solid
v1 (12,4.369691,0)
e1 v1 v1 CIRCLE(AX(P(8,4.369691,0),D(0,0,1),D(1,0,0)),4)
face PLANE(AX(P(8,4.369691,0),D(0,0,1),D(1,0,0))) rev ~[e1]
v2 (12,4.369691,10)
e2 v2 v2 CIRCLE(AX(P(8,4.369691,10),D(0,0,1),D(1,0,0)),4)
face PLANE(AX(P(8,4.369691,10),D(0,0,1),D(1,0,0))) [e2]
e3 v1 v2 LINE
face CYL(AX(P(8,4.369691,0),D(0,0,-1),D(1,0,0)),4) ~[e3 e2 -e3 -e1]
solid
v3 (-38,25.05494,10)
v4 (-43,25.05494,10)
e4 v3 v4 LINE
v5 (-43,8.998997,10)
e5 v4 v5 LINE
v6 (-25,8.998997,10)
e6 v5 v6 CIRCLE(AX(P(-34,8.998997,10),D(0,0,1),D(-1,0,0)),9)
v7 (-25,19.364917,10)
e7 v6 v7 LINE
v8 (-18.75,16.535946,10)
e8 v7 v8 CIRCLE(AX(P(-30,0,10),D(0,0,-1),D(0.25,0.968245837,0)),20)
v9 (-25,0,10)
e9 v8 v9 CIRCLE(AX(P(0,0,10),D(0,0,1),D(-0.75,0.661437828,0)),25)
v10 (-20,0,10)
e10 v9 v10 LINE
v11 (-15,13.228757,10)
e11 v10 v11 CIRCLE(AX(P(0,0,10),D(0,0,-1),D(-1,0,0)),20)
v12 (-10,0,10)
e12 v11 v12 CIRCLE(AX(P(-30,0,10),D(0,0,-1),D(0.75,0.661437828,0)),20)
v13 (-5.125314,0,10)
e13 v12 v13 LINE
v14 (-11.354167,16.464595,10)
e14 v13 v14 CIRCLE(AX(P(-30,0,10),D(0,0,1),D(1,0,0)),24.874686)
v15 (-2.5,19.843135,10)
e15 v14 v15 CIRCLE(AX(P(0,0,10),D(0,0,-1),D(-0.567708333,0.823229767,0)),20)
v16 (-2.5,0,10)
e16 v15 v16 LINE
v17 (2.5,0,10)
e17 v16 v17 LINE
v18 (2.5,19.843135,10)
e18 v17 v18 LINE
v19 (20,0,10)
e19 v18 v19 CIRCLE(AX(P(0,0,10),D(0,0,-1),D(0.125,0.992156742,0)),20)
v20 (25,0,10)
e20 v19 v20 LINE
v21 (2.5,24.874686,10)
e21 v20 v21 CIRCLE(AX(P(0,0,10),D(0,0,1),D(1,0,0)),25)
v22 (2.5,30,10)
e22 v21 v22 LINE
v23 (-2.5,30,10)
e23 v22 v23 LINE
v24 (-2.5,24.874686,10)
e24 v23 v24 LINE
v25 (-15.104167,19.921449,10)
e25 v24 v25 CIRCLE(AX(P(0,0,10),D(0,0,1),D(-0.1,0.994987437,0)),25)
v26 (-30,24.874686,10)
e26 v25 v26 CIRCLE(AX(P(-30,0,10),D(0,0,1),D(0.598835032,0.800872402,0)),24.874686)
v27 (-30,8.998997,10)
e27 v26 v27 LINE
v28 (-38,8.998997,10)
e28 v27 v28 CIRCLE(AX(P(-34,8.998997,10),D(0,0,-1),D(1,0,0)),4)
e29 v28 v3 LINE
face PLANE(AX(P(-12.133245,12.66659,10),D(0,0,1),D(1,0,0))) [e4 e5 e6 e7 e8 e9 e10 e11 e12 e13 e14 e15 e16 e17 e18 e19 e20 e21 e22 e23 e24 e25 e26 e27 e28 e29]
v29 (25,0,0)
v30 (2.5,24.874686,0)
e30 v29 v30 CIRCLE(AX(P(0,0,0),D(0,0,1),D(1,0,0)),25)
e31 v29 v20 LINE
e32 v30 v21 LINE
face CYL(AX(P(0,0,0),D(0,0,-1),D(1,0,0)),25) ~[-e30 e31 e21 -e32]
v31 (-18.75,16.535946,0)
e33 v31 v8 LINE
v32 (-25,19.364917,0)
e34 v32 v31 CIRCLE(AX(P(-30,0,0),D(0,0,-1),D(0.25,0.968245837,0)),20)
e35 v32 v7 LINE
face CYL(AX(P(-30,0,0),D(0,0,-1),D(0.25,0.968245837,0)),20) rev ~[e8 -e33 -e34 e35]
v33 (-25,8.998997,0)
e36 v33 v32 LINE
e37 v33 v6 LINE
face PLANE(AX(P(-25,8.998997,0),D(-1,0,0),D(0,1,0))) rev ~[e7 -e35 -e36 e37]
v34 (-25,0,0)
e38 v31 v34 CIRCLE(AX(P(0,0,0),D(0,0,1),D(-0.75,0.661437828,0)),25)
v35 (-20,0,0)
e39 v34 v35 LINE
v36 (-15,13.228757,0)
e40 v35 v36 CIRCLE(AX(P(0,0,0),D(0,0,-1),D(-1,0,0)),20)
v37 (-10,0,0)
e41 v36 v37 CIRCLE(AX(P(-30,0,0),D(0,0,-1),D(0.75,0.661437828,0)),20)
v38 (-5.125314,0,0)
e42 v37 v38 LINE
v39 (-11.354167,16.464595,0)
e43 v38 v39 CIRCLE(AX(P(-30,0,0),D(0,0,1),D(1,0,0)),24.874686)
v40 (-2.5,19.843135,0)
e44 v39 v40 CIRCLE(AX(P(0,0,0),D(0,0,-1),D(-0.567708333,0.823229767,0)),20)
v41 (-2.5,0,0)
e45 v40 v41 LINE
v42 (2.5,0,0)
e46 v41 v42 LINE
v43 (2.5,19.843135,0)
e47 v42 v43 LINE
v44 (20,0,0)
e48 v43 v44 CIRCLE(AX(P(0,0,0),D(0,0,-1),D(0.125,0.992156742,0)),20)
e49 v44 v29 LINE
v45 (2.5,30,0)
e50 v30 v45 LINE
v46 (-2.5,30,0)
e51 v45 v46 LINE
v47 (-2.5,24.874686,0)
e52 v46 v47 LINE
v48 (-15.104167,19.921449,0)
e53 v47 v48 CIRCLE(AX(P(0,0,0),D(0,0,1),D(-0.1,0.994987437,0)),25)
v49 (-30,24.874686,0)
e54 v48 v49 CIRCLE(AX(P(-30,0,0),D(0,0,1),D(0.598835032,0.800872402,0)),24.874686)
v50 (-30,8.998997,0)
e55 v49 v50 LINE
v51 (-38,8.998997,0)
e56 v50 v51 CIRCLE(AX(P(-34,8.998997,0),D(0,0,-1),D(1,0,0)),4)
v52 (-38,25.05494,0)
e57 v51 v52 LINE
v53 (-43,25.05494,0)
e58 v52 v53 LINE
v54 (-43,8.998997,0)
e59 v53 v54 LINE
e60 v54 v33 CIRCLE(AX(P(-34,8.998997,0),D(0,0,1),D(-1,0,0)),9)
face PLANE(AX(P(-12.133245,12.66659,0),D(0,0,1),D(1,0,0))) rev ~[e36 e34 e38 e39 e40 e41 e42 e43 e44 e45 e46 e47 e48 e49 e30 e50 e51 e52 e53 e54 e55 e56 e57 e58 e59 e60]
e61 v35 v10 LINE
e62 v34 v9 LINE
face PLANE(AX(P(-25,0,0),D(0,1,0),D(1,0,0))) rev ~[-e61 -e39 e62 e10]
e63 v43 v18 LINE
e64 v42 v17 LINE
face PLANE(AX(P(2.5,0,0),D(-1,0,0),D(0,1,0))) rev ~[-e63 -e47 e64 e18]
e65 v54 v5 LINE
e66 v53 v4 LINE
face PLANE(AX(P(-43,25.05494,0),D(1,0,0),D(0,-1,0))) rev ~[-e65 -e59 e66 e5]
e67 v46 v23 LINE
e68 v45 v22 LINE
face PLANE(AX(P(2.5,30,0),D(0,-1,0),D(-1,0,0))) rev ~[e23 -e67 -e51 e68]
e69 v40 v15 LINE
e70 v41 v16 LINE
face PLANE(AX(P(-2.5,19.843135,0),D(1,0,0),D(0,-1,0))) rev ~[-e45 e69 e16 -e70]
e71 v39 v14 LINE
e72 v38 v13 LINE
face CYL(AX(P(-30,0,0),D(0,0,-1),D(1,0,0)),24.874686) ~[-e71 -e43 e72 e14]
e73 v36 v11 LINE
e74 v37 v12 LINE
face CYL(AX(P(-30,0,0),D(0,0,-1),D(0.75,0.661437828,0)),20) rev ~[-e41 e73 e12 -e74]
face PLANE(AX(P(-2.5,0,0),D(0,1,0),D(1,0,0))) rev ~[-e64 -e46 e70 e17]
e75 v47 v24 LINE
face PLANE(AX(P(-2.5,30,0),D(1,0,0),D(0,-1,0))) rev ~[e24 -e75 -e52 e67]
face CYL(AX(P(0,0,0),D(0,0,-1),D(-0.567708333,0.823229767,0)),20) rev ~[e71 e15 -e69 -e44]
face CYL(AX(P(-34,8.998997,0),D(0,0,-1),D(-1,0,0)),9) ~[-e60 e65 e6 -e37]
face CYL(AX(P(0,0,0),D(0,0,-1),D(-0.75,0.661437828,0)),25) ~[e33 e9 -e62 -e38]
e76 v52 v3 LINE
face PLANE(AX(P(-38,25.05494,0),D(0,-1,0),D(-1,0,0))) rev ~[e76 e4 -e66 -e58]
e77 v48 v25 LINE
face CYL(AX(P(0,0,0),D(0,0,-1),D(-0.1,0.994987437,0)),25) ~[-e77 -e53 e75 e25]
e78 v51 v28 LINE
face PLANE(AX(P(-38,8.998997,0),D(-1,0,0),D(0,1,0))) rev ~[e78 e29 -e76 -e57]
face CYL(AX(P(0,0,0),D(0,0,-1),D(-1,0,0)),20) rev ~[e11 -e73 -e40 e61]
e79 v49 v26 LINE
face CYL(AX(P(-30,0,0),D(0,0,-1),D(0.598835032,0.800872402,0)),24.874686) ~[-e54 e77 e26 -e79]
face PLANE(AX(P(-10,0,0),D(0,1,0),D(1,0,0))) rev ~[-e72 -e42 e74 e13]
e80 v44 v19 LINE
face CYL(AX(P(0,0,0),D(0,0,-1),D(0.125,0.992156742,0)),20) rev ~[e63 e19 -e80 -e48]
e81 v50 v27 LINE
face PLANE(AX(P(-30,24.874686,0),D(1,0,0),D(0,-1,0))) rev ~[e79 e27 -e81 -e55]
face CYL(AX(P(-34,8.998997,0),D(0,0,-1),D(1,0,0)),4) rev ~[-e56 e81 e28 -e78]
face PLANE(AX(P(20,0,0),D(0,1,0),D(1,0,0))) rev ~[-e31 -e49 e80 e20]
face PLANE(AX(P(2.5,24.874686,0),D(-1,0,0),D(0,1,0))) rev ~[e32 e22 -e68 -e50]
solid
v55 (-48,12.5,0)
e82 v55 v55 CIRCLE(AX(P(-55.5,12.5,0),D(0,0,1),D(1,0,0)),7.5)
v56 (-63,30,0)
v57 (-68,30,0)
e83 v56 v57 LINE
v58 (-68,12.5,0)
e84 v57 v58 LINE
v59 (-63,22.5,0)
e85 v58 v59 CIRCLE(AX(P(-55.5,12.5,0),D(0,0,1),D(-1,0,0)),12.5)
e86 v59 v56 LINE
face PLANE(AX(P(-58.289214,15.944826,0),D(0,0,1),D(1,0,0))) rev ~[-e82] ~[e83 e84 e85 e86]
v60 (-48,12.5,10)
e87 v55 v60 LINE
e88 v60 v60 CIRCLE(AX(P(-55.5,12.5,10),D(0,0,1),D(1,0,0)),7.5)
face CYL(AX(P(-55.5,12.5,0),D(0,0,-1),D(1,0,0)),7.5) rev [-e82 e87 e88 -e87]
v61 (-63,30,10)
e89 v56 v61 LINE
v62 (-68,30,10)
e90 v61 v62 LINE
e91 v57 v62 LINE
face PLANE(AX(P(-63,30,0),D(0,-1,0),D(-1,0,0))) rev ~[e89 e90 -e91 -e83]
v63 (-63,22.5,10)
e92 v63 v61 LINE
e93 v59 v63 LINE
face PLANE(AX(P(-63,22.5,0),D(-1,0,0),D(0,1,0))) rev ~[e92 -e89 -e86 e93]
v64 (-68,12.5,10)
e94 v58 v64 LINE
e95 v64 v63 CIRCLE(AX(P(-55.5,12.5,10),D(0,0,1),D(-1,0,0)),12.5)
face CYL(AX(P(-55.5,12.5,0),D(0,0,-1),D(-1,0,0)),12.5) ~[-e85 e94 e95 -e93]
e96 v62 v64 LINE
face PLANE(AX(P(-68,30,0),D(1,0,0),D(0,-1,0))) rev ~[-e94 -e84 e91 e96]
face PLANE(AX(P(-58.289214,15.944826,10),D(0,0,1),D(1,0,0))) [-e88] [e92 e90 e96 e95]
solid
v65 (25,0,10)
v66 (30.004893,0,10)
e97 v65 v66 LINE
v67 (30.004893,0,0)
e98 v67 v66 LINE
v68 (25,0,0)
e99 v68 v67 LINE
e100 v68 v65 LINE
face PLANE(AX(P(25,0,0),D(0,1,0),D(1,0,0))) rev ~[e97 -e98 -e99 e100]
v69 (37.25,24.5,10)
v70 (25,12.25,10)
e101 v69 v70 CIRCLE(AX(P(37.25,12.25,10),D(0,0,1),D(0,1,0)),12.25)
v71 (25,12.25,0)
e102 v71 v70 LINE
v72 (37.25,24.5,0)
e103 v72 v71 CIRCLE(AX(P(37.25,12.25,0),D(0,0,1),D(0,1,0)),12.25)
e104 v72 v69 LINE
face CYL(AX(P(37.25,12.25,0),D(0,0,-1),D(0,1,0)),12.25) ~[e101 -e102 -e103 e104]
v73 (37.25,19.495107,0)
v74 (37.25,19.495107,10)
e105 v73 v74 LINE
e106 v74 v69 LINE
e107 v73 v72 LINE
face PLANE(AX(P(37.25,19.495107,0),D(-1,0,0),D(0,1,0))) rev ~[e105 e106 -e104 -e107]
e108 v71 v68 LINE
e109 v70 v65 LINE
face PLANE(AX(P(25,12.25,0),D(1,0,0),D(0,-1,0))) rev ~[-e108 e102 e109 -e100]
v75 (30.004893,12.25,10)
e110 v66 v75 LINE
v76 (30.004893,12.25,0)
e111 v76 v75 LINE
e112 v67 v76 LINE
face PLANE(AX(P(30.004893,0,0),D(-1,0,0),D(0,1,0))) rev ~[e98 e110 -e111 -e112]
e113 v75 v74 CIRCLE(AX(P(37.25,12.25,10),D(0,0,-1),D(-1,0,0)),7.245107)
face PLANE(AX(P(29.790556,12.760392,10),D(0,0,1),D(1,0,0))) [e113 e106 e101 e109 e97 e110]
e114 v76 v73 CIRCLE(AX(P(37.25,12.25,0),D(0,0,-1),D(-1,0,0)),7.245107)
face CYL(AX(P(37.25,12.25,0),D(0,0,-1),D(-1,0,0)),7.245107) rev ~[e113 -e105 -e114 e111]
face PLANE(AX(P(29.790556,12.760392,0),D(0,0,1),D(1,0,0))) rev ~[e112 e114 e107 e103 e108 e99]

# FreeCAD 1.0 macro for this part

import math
import FreeCAD as App
import Part
import Sketcher

V = App.Vector
Q = App.Units.Quantity

doc = App.newDocument("Part")
params = doc.addObject("Spreadsheet::Sheet", "Params")
for row, (alias, value) in enumerate([
    ("sketch1_diameter", "15 mm"),
    ("sketch1_radius", "12.5 mm"),
    ("sketch1_width", "5 mm"),
    ("sketch1_height", "7.5 mm"),
    ("pad1_length", "10 mm"),
    ("sketch2_radius", "25 mm"),
    ("sketch2_radius2", "4 mm"),
    ("sketch2_radius3", "9 mm"),
    ("pad2_length", "10 mm"),
    ("sketch3_radius", "12.25 mm"),
    ("sketch3_height", "12.25 mm"),
    ("pad3_length", "10 mm"),
    ("sketch4_diameter", "8 mm"),
    ("pad4_length", "10 mm"),
], start=1):
    params.set(f"A{row}", alias)
    params.set(f"B{row}", "=" + value)
    params.setAlias(f"B{row}", alias)

body = doc.addObject("PartDesign::Body", "Body")

# Sketch on XY plane
sketch1 = body.newObject("Sketcher::SketchObject", "Sketch")
sketch1.AttachmentSupport = (doc.getObject("XY_Plane"), [""])
sketch1.MapMode = "FlatFace"
sketch1.addGeometry(Part.ArcOfCircle(Part.Circle(V(-56, 12, 0), V(0, 0, 1), 12), math.radians(180), math.radians(487)), False)
sketch1.addGeometry(Part.LineSegment(V(-63, 22, 0), V(-63, 30, 0)), False)
sketch1.addGeometry(Part.LineSegment(V(-63, 30, 0), V(-68, 30, 0)), False)
sketch1.addGeometry(Part.LineSegment(V(-68, 30, 0), V(-68, 12, 0)), False)
sketch1.addGeometry(Part.Circle(V(-56, 12, 0), V(0, 0, 1), 8), False)
sketch1.addConstraint(Sketcher.Constraint("Coincident", 0, 2, 1, 1))
sketch1.addConstraint(Sketcher.Constraint("Coincident", 1, 2, 2, 1))
sketch1.addConstraint(Sketcher.Constraint("Coincident", 2, 2, 3, 1))
sketch1.addConstraint(Sketcher.Constraint("Tangent", 3, 2, 0, 1))
sketch1.addConstraint(Sketcher.Constraint("Vertical", 1))
sketch1.addConstraint(Sketcher.Constraint("Horizontal", 2))
sketch1.addConstraint(Sketcher.Constraint("Vertical", 3))
sketch1.addConstraint(Sketcher.Constraint("Coincident", 4, 3, 0, 3))
sketch1.addConstraint(Sketcher.Constraint("Diameter", 4, Q("15 mm")))
sketch1.addConstraint(Sketcher.Constraint("Radius", 0, Q("12.5 mm")))
sketch1.addConstraint(Sketcher.Constraint("DistanceX", 2, 2, 2, 1, Q("5 mm")))
sketch1.addConstraint(Sketcher.Constraint("DistanceY", 1, 1, 1, 2, Q("7.5 mm")))
sketch1.addConstraint(Sketcher.Constraint("DistanceX", 0, 2, -1, 1, Q("63 mm")))
sketch1.addConstraint(Sketcher.Constraint("DistanceY", -1, 1, 1, 2, Q("30 mm")))
sketch1.setExpression("Constraints[8]", "Params.sketch1_diameter")
sketch1.setExpression("Constraints[9]", "Params.sketch1_radius")
sketch1.setExpression("Constraints[10]", "Params.sketch1_width")
sketch1.setExpression("Constraints[11]", "Params.sketch1_height")
pad1 = body.newObject("PartDesign::Pad", "Pad")
pad1.Profile = sketch1
pad1.setExpression("Length", "Params.pad1_length")
body2 = doc.addObject("PartDesign::Body", "Body001")

# Sketch on XY plane
sketch2 = body2.newObject("Sketcher::SketchObject", "Sketch001")
sketch2.AttachmentSupport = (doc.getObject("XY_Plane001"), [""])
sketch2.MapMode = "FlatFace"
sketch2.addGeometry(Part.LineSegment(V(2.5, 24.9, 0), V(2.5, 30, 0)), False)
sketch2.addGeometry(Part.LineSegment(V(2.5, 30, 0), V(-2.5, 30, 0)), False)
sketch2.addGeometry(Part.LineSegment(V(-2.5, 30, 0), V(-2.5, 24.9, 0)), False)
sketch2.addGeometry(Part.ArcOfCircle(Part.Circle(V(0, 0, 0), V(0, 0, 1), 25), math.radians(96), math.radians(127)), False)
sketch2.addGeometry(Part.ArcOfCircle(Part.Circle(V(-30, 0, 0), V(0, 0, 1), 24.9), math.radians(53), math.radians(90)), False)
sketch2.addGeometry(Part.LineSegment(V(-30, 24.9, 0), V(-30, 9, 0)), False)
sketch2.addGeometry(Part.ArcOfCircle(Part.Circle(V(-34, 9, 0), V(0, 0, 1), 4), math.radians(180), math.radians(360)), False)
sketch2.addGeometry(Part.LineSegment(V(-38, 9, 0), V(-38, 25.1, 0)), False)
sketch2.addGeometry(Part.LineSegment(V(-38, 25.1, 0), V(-43, 25.1, 0)), False)
sketch2.addGeometry(Part.LineSegment(V(-43, 25.1, 0), V(-43, 9, 0)), False)
sketch2.addGeometry(Part.ArcOfCircle(Part.Circle(V(-34, 9, 0), V(0, 0, 1), 9), math.radians(180), math.radians(360)), False)
sketch2.addGeometry(Part.LineSegment(V(-25, 9, 0), V(-25, 19.4, 0)), False)
sketch2.addGeometry(Part.ArcOfCircle(Part.Circle(V(-30, 0, 0), V(0, 0, 1), 20), math.radians(55.77), math.radians(75.52)), False)
sketch2.addGeometry(Part.ArcOfCircle(Part.Circle(V(0, 0, 0), V(0, 0, 1), 25), math.radians(139), math.radians(180)), False)
sketch2.addGeometry(Part.LineSegment(V(-25, 0, 0), V(-20, 0, 0)), False)
sketch2.addGeometry(Part.ArcOfCircle(Part.Circle(V(0, 0, 0), V(0, 0, 1), 20), math.radians(139), math.radians(180)), False)
sketch2.addGeometry(Part.ArcOfCircle(Part.Circle(V(-30, 0, 0), V(0, 0, 1), 20), math.radians(0), math.radians(41)), False)
sketch2.addGeometry(Part.LineSegment(V(-10, 0, 0), V(-5.1, 0, 0)), False)
sketch2.addGeometry(Part.ArcOfCircle(Part.Circle(V(-30, 0, 0), V(0, 0, 1), 24.9), math.radians(0), math.radians(41)), False)
sketch2.addGeometry(Part.ArcOfCircle(Part.Circle(V(0, 0, 0), V(0, 0, 1), 20), math.radians(97), math.radians(125)), False)
sketch2.addGeometry(Part.LineSegment(V(-2.5, 19.8, 0), V(-2.5, 0, 0)), False)
sketch2.addGeometry(Part.LineSegment(V(-2.5, 0, 0), V(2.5, 0, 0)), False)
sketch2.addGeometry(Part.LineSegment(V(2.5, 0, 0), V(2.5, 19.8, 0)), False)
sketch2.addGeometry(Part.ArcOfCircle(Part.Circle(V(0, 0, 0), V(0, 0, 1), 20), math.radians(0), math.radians(83)), False)
sketch2.addGeometry(Part.LineSegment(V(20, 0, 0), V(25, 0, 0)), False)
sketch2.addGeometry(Part.ArcOfCircle(Part.Circle(V(0, 0, 0), V(0, 0, 1), 25), math.radians(0), math.radians(84)), False)
sketch2.addConstraint(Sketcher.Constraint("Coincident", 0, 2, 1, 1))
sketch2.addConstraint(Sketcher.Constraint("Coincident", 1, 2, 2, 1))
sketch2.addConstraint(Sketcher.Constraint("Coincident", 2, 2, 3, 1))
sketch2.addConstraint(Sketcher.Constraint("Coincident", 3, 2, 4, 1))
sketch2.addConstraint(Sketcher.Constraint("Coincident", 4, 2, 5, 1))
sketch2.addConstraint(Sketcher.Constraint("Tangent", 5, 2, 6, 2))
sketch2.addConstraint(Sketcher.Constraint("Tangent", 6, 1, 7, 1))
sketch2.addConstraint(Sketcher.Constraint("Coincident", 7, 2, 8, 1))
sketch2.addConstraint(Sketcher.Constraint("Coincident", 8, 2, 9, 1))
sketch2.addConstraint(Sketcher.Constraint("Tangent", 9, 2, 10, 1))
sketch2.addConstraint(Sketcher.Constraint("Tangent", 10, 2, 11, 1))
sketch2.addConstraint(Sketcher.Constraint("Coincident", 11, 2, 12, 2))
sketch2.addConstraint(Sketcher.Constraint("Coincident", 12, 1, 13, 1))
sketch2.addConstraint(Sketcher.Constraint("Coincident", 13, 2, 14, 1))
sketch2.addConstraint(Sketcher.Constraint("Coincident", 14, 2, 15, 2))
sketch2.addConstraint(Sketcher.Constraint("Coincident", 15, 1, 16, 2))
sketch2.addConstraint(Sketcher.Constraint("Coincident", 16, 1, 17, 1))
sketch2.addConstraint(Sketcher.Constraint("Coincident", 17, 2, 18, 1))
sketch2.addConstraint(Sketcher.Constraint("Coincident", 18, 2, 19, 2))
sketch2.addConstraint(Sketcher.Constraint("Coincident", 19, 1, 20, 1))
sketch2.addConstraint(Sketcher.Constraint("Coincident", 20, 2, 21, 1))
sketch2.addConstraint(Sketcher.Constraint("Coincident", 21, 2, 22, 1))
sketch2.addConstraint(Sketcher.Constraint("Coincident", 22, 2, 23, 2))
sketch2.addConstraint(Sketcher.Constraint("Coincident", 23, 1, 24, 1))
sketch2.addConstraint(Sketcher.Constraint("Coincident", 24, 2, 25, 1))
sketch2.addConstraint(Sketcher.Constraint("Coincident", 25, 2, 0, 1))
sketch2.addConstraint(Sketcher.Constraint("Vertical", 0))
sketch2.addConstraint(Sketcher.Constraint("Horizontal", 1))
sketch2.addConstraint(Sketcher.Constraint("Vertical", 2))
sketch2.addConstraint(Sketcher.Constraint("Vertical", 5))
sketch2.addConstraint(Sketcher.Constraint("Vertical", 7))
sketch2.addConstraint(Sketcher.Constraint("Horizontal", 8))
sketch2.addConstraint(Sketcher.Constraint("Vertical", 9))
sketch2.addConstraint(Sketcher.Constraint("Vertical", 11))
sketch2.addConstraint(Sketcher.Constraint("Horizontal", 14))
sketch2.addConstraint(Sketcher.Constraint("Horizontal", 17))
sketch2.addConstraint(Sketcher.Constraint("Vertical", 20))
sketch2.addConstraint(Sketcher.Constraint("Horizontal", 21))
sketch2.addConstraint(Sketcher.Constraint("Vertical", 22))
sketch2.addConstraint(Sketcher.Constraint("Horizontal", 24))
sketch2.addConstraint(Sketcher.Constraint("Coincident", 3, 3, -1, 1))
sketch2.addConstraint(Sketcher.Constraint("Coincident", 13, 3, -1, 1))
sketch2.addConstraint(Sketcher.Constraint("Coincident", 15, 3, -1, 1))
sketch2.addConstraint(Sketcher.Constraint("Coincident", 19, 3, -1, 1))
sketch2.addConstraint(Sketcher.Constraint("Coincident", 23, 3, -1, 1))
sketch2.addConstraint(Sketcher.Constraint("Coincident", 25, 3, -1, 1))
sketch2.addConstraint(Sketcher.Constraint("Coincident", 10, 3, 6, 3))
sketch2.addConstraint(Sketcher.Constraint("Coincident", 12, 3, 4, 3))
sketch2.addConstraint(Sketcher.Constraint("Coincident", 16, 3, 4, 3))
sketch2.addConstraint(Sketcher.Constraint("Coincident", 18, 3, 4, 3))
sketch2.addConstraint(Sketcher.Constraint("Equal", 3, 13))
sketch2.addConstraint(Sketcher.Constraint("Equal", 12, 15))
sketch2.addConstraint(Sketcher.Constraint("Equal", 15, 16))
sketch2.addConstraint(Sketcher.Constraint("Equal", 4, 18))
sketch2.addConstraint(Sketcher.Constraint("Equal", 16, 19))
sketch2.addConstraint(Sketcher.Constraint("Equal", 19, 23))
sketch2.addConstraint(Sketcher.Constraint("Equal", 13, 25))
sketch2.addConstraint(Sketcher.Constraint("Symmetric", 20, 2, 21, 2, -1, 1))
sketch2.addConstraint(Sketcher.Constraint("PointOnObject", 4, 3, -1))
sketch2.addConstraint(Sketcher.Constraint("PointOnObject", 13, 2, -1))
sketch2.addConstraint(Sketcher.Constraint("PointOnObject", 16, 1, -1))
sketch2.addConstraint(Sketcher.Constraint("PointOnObject", 23, 1, -1))
sketch2.addConstraint(Sketcher.Constraint("Horizontal", 2, 2, 4, 2))
sketch2.addConstraint(Sketcher.Constraint("Horizontal", 4, 2, 25, 2))
sketch2.addConstraint(Sketcher.Constraint("Vertical", 18, 3, 4, 2))
sketch2.addConstraint(Sketcher.Constraint("Vertical", 11, 2, 13, 2))
sketch2.addConstraint(Sketcher.Constraint("Vertical", 2, 2, 19, 1))
sketch2.addConstraint(Sketcher.Constraint("Equal", 1, 8))
sketch2.addConstraint(Sketcher.Constraint("Equal", 8, 14))
sketch2.addConstraint(Sketcher.Constraint("Radius", 3, Q("25 mm")))
sketch2.addConstraint(Sketcher.Constraint("Radius", 6, Q("4 mm")))
sketch2.addConstraint(Sketcher.Constraint("Radius", 10, Q("9 mm")))
sketch2.addConstraint(Sketcher.Constraint("DistanceY", -1, 1, 0, 2, Q("30 mm")))
sketch2.addConstraint(Sketcher.Constraint("DistanceY", 5, 2, 5, 1, Q("15.875689 mm")))
sketch2.addConstraint(Sketcher.Constraint("DistanceY", 7, 1, 7, 2, Q("16.055942 mm")))
sketch2.setExpression("Constraints[69]", "Params.sketch2_radius")
sketch2.setExpression("Constraints[70]", "Params.sketch2_radius2")
sketch2.setExpression("Constraints[71]", "Params.sketch2_radius3")
pad2 = body2.newObject("PartDesign::Pad", "Pad001")
pad2.Profile = sketch2
pad2.setExpression("Length", "Params.pad2_length")
body3 = doc.addObject("PartDesign::Body", "Body002")

# Sketch on XY plane
sketch3 = body3.newObject("Sketcher::SketchObject", "Sketch002")
sketch3.AttachmentSupport = (doc.getObject("XY_Plane002"), [""])
sketch3.MapMode = "FlatFace"
sketch3.addGeometry(Part.LineSegment(V(25, 12, 0), V(25, 0, 0)), False)
sketch3.addGeometry(Part.LineSegment(V(25, 0, 0), V(30, 0, 0)), False)
sketch3.addGeometry(Part.LineSegment(V(30, 0, 0), V(30, 12, 0)), False)
sketch3.addGeometry(Part.ArcOfCircle(Part.Circle(V(37, 12, 0), V(0, 0, 1), 7), math.radians(90), math.radians(180)), False)
sketch3.addGeometry(Part.LineSegment(V(37, 19, 0), V(37, 24, 0)), False)
sketch3.addGeometry(Part.ArcOfCircle(Part.Circle(V(37, 12, 0), V(0, 0, 1), 12), math.radians(90), math.radians(180)), False)
sketch3.addConstraint(Sketcher.Constraint("Coincident", 0, 2, 1, 1))
sketch3.addConstraint(Sketcher.Constraint("Coincident", 1, 2, 2, 1))
sketch3.addConstraint(Sketcher.Constraint("Tangent", 2, 2, 3, 2))
sketch3.addConstraint(Sketcher.Constraint("Coincident", 3, 1, 4, 1))
sketch3.addConstraint(Sketcher.Constraint("Coincident", 4, 2, 5, 1))
sketch3.addConstraint(Sketcher.Constraint("Tangent", 5, 2, 0, 1))
sketch3.addConstraint(Sketcher.Constraint("Vertical", 0))
sketch3.addConstraint(Sketcher.Constraint("Horizontal", 1))
sketch3.addConstraint(Sketcher.Constraint("Vertical", 2))
sketch3.addConstraint(Sketcher.Constraint("Vertical", 4))
sketch3.addConstraint(Sketcher.Constraint("Coincident", 5, 3, 3, 3))
sketch3.addConstraint(Sketcher.Constraint("PointOnObject", 0, 2, -1))
sketch3.addConstraint(Sketcher.Constraint("Vertical", 5, 3, 3, 1))
sketch3.addConstraint(Sketcher.Constraint("Radius", 5, Q("12.25 mm")))
sketch3.addConstraint(Sketcher.Constraint("DistanceX", -1, 1, 0, 2, Q("25 mm")))
sketch3.addConstraint(Sketcher.Constraint("DistanceY", 0, 2, 0, 1, Q("12.25 mm")))
sketch3.addConstraint(Sketcher.Constraint("Radius", 3, Q("7.245107 mm")))
sketch3.setExpression("Constraints[13]", "Params.sketch3_radius")
sketch3.setExpression("Constraints[15]", "Params.sketch3_height")
pad3 = body3.newObject("PartDesign::Pad", "Pad002")
pad3.Profile = sketch3
pad3.setExpression("Length", "Params.pad3_length")
body4 = doc.addObject("PartDesign::Body", "Body003")

# Sketch on XY plane
sketch4 = body4.newObject("Sketcher::SketchObject", "Sketch003")
sketch4.AttachmentSupport = (doc.getObject("XY_Plane003"), [""])
sketch4.MapMode = "FlatFace"
sketch4.addGeometry(Part.Circle(V(8, 4.4, 0), V(0, 0, 1), 4), False)
sketch4.addConstraint(Sketcher.Constraint("Diameter", 0, Q("8 mm")))
sketch4.addConstraint(Sketcher.Constraint("DistanceX", -1, 1, 0, 3, Q("8 mm")))
sketch4.addConstraint(Sketcher.Constraint("DistanceY", -1, 1, 0, 3, Q("4.369691 mm")))
sketch4.setExpression("Constraints[0]", "Params.sketch4_diameter")
pad4 = body4.newObject("PartDesign::Pad", "Pad003")
pad4.Profile = sketch4
pad4.setExpression("Length", "Params.pad4_length")

doc.recompute()
